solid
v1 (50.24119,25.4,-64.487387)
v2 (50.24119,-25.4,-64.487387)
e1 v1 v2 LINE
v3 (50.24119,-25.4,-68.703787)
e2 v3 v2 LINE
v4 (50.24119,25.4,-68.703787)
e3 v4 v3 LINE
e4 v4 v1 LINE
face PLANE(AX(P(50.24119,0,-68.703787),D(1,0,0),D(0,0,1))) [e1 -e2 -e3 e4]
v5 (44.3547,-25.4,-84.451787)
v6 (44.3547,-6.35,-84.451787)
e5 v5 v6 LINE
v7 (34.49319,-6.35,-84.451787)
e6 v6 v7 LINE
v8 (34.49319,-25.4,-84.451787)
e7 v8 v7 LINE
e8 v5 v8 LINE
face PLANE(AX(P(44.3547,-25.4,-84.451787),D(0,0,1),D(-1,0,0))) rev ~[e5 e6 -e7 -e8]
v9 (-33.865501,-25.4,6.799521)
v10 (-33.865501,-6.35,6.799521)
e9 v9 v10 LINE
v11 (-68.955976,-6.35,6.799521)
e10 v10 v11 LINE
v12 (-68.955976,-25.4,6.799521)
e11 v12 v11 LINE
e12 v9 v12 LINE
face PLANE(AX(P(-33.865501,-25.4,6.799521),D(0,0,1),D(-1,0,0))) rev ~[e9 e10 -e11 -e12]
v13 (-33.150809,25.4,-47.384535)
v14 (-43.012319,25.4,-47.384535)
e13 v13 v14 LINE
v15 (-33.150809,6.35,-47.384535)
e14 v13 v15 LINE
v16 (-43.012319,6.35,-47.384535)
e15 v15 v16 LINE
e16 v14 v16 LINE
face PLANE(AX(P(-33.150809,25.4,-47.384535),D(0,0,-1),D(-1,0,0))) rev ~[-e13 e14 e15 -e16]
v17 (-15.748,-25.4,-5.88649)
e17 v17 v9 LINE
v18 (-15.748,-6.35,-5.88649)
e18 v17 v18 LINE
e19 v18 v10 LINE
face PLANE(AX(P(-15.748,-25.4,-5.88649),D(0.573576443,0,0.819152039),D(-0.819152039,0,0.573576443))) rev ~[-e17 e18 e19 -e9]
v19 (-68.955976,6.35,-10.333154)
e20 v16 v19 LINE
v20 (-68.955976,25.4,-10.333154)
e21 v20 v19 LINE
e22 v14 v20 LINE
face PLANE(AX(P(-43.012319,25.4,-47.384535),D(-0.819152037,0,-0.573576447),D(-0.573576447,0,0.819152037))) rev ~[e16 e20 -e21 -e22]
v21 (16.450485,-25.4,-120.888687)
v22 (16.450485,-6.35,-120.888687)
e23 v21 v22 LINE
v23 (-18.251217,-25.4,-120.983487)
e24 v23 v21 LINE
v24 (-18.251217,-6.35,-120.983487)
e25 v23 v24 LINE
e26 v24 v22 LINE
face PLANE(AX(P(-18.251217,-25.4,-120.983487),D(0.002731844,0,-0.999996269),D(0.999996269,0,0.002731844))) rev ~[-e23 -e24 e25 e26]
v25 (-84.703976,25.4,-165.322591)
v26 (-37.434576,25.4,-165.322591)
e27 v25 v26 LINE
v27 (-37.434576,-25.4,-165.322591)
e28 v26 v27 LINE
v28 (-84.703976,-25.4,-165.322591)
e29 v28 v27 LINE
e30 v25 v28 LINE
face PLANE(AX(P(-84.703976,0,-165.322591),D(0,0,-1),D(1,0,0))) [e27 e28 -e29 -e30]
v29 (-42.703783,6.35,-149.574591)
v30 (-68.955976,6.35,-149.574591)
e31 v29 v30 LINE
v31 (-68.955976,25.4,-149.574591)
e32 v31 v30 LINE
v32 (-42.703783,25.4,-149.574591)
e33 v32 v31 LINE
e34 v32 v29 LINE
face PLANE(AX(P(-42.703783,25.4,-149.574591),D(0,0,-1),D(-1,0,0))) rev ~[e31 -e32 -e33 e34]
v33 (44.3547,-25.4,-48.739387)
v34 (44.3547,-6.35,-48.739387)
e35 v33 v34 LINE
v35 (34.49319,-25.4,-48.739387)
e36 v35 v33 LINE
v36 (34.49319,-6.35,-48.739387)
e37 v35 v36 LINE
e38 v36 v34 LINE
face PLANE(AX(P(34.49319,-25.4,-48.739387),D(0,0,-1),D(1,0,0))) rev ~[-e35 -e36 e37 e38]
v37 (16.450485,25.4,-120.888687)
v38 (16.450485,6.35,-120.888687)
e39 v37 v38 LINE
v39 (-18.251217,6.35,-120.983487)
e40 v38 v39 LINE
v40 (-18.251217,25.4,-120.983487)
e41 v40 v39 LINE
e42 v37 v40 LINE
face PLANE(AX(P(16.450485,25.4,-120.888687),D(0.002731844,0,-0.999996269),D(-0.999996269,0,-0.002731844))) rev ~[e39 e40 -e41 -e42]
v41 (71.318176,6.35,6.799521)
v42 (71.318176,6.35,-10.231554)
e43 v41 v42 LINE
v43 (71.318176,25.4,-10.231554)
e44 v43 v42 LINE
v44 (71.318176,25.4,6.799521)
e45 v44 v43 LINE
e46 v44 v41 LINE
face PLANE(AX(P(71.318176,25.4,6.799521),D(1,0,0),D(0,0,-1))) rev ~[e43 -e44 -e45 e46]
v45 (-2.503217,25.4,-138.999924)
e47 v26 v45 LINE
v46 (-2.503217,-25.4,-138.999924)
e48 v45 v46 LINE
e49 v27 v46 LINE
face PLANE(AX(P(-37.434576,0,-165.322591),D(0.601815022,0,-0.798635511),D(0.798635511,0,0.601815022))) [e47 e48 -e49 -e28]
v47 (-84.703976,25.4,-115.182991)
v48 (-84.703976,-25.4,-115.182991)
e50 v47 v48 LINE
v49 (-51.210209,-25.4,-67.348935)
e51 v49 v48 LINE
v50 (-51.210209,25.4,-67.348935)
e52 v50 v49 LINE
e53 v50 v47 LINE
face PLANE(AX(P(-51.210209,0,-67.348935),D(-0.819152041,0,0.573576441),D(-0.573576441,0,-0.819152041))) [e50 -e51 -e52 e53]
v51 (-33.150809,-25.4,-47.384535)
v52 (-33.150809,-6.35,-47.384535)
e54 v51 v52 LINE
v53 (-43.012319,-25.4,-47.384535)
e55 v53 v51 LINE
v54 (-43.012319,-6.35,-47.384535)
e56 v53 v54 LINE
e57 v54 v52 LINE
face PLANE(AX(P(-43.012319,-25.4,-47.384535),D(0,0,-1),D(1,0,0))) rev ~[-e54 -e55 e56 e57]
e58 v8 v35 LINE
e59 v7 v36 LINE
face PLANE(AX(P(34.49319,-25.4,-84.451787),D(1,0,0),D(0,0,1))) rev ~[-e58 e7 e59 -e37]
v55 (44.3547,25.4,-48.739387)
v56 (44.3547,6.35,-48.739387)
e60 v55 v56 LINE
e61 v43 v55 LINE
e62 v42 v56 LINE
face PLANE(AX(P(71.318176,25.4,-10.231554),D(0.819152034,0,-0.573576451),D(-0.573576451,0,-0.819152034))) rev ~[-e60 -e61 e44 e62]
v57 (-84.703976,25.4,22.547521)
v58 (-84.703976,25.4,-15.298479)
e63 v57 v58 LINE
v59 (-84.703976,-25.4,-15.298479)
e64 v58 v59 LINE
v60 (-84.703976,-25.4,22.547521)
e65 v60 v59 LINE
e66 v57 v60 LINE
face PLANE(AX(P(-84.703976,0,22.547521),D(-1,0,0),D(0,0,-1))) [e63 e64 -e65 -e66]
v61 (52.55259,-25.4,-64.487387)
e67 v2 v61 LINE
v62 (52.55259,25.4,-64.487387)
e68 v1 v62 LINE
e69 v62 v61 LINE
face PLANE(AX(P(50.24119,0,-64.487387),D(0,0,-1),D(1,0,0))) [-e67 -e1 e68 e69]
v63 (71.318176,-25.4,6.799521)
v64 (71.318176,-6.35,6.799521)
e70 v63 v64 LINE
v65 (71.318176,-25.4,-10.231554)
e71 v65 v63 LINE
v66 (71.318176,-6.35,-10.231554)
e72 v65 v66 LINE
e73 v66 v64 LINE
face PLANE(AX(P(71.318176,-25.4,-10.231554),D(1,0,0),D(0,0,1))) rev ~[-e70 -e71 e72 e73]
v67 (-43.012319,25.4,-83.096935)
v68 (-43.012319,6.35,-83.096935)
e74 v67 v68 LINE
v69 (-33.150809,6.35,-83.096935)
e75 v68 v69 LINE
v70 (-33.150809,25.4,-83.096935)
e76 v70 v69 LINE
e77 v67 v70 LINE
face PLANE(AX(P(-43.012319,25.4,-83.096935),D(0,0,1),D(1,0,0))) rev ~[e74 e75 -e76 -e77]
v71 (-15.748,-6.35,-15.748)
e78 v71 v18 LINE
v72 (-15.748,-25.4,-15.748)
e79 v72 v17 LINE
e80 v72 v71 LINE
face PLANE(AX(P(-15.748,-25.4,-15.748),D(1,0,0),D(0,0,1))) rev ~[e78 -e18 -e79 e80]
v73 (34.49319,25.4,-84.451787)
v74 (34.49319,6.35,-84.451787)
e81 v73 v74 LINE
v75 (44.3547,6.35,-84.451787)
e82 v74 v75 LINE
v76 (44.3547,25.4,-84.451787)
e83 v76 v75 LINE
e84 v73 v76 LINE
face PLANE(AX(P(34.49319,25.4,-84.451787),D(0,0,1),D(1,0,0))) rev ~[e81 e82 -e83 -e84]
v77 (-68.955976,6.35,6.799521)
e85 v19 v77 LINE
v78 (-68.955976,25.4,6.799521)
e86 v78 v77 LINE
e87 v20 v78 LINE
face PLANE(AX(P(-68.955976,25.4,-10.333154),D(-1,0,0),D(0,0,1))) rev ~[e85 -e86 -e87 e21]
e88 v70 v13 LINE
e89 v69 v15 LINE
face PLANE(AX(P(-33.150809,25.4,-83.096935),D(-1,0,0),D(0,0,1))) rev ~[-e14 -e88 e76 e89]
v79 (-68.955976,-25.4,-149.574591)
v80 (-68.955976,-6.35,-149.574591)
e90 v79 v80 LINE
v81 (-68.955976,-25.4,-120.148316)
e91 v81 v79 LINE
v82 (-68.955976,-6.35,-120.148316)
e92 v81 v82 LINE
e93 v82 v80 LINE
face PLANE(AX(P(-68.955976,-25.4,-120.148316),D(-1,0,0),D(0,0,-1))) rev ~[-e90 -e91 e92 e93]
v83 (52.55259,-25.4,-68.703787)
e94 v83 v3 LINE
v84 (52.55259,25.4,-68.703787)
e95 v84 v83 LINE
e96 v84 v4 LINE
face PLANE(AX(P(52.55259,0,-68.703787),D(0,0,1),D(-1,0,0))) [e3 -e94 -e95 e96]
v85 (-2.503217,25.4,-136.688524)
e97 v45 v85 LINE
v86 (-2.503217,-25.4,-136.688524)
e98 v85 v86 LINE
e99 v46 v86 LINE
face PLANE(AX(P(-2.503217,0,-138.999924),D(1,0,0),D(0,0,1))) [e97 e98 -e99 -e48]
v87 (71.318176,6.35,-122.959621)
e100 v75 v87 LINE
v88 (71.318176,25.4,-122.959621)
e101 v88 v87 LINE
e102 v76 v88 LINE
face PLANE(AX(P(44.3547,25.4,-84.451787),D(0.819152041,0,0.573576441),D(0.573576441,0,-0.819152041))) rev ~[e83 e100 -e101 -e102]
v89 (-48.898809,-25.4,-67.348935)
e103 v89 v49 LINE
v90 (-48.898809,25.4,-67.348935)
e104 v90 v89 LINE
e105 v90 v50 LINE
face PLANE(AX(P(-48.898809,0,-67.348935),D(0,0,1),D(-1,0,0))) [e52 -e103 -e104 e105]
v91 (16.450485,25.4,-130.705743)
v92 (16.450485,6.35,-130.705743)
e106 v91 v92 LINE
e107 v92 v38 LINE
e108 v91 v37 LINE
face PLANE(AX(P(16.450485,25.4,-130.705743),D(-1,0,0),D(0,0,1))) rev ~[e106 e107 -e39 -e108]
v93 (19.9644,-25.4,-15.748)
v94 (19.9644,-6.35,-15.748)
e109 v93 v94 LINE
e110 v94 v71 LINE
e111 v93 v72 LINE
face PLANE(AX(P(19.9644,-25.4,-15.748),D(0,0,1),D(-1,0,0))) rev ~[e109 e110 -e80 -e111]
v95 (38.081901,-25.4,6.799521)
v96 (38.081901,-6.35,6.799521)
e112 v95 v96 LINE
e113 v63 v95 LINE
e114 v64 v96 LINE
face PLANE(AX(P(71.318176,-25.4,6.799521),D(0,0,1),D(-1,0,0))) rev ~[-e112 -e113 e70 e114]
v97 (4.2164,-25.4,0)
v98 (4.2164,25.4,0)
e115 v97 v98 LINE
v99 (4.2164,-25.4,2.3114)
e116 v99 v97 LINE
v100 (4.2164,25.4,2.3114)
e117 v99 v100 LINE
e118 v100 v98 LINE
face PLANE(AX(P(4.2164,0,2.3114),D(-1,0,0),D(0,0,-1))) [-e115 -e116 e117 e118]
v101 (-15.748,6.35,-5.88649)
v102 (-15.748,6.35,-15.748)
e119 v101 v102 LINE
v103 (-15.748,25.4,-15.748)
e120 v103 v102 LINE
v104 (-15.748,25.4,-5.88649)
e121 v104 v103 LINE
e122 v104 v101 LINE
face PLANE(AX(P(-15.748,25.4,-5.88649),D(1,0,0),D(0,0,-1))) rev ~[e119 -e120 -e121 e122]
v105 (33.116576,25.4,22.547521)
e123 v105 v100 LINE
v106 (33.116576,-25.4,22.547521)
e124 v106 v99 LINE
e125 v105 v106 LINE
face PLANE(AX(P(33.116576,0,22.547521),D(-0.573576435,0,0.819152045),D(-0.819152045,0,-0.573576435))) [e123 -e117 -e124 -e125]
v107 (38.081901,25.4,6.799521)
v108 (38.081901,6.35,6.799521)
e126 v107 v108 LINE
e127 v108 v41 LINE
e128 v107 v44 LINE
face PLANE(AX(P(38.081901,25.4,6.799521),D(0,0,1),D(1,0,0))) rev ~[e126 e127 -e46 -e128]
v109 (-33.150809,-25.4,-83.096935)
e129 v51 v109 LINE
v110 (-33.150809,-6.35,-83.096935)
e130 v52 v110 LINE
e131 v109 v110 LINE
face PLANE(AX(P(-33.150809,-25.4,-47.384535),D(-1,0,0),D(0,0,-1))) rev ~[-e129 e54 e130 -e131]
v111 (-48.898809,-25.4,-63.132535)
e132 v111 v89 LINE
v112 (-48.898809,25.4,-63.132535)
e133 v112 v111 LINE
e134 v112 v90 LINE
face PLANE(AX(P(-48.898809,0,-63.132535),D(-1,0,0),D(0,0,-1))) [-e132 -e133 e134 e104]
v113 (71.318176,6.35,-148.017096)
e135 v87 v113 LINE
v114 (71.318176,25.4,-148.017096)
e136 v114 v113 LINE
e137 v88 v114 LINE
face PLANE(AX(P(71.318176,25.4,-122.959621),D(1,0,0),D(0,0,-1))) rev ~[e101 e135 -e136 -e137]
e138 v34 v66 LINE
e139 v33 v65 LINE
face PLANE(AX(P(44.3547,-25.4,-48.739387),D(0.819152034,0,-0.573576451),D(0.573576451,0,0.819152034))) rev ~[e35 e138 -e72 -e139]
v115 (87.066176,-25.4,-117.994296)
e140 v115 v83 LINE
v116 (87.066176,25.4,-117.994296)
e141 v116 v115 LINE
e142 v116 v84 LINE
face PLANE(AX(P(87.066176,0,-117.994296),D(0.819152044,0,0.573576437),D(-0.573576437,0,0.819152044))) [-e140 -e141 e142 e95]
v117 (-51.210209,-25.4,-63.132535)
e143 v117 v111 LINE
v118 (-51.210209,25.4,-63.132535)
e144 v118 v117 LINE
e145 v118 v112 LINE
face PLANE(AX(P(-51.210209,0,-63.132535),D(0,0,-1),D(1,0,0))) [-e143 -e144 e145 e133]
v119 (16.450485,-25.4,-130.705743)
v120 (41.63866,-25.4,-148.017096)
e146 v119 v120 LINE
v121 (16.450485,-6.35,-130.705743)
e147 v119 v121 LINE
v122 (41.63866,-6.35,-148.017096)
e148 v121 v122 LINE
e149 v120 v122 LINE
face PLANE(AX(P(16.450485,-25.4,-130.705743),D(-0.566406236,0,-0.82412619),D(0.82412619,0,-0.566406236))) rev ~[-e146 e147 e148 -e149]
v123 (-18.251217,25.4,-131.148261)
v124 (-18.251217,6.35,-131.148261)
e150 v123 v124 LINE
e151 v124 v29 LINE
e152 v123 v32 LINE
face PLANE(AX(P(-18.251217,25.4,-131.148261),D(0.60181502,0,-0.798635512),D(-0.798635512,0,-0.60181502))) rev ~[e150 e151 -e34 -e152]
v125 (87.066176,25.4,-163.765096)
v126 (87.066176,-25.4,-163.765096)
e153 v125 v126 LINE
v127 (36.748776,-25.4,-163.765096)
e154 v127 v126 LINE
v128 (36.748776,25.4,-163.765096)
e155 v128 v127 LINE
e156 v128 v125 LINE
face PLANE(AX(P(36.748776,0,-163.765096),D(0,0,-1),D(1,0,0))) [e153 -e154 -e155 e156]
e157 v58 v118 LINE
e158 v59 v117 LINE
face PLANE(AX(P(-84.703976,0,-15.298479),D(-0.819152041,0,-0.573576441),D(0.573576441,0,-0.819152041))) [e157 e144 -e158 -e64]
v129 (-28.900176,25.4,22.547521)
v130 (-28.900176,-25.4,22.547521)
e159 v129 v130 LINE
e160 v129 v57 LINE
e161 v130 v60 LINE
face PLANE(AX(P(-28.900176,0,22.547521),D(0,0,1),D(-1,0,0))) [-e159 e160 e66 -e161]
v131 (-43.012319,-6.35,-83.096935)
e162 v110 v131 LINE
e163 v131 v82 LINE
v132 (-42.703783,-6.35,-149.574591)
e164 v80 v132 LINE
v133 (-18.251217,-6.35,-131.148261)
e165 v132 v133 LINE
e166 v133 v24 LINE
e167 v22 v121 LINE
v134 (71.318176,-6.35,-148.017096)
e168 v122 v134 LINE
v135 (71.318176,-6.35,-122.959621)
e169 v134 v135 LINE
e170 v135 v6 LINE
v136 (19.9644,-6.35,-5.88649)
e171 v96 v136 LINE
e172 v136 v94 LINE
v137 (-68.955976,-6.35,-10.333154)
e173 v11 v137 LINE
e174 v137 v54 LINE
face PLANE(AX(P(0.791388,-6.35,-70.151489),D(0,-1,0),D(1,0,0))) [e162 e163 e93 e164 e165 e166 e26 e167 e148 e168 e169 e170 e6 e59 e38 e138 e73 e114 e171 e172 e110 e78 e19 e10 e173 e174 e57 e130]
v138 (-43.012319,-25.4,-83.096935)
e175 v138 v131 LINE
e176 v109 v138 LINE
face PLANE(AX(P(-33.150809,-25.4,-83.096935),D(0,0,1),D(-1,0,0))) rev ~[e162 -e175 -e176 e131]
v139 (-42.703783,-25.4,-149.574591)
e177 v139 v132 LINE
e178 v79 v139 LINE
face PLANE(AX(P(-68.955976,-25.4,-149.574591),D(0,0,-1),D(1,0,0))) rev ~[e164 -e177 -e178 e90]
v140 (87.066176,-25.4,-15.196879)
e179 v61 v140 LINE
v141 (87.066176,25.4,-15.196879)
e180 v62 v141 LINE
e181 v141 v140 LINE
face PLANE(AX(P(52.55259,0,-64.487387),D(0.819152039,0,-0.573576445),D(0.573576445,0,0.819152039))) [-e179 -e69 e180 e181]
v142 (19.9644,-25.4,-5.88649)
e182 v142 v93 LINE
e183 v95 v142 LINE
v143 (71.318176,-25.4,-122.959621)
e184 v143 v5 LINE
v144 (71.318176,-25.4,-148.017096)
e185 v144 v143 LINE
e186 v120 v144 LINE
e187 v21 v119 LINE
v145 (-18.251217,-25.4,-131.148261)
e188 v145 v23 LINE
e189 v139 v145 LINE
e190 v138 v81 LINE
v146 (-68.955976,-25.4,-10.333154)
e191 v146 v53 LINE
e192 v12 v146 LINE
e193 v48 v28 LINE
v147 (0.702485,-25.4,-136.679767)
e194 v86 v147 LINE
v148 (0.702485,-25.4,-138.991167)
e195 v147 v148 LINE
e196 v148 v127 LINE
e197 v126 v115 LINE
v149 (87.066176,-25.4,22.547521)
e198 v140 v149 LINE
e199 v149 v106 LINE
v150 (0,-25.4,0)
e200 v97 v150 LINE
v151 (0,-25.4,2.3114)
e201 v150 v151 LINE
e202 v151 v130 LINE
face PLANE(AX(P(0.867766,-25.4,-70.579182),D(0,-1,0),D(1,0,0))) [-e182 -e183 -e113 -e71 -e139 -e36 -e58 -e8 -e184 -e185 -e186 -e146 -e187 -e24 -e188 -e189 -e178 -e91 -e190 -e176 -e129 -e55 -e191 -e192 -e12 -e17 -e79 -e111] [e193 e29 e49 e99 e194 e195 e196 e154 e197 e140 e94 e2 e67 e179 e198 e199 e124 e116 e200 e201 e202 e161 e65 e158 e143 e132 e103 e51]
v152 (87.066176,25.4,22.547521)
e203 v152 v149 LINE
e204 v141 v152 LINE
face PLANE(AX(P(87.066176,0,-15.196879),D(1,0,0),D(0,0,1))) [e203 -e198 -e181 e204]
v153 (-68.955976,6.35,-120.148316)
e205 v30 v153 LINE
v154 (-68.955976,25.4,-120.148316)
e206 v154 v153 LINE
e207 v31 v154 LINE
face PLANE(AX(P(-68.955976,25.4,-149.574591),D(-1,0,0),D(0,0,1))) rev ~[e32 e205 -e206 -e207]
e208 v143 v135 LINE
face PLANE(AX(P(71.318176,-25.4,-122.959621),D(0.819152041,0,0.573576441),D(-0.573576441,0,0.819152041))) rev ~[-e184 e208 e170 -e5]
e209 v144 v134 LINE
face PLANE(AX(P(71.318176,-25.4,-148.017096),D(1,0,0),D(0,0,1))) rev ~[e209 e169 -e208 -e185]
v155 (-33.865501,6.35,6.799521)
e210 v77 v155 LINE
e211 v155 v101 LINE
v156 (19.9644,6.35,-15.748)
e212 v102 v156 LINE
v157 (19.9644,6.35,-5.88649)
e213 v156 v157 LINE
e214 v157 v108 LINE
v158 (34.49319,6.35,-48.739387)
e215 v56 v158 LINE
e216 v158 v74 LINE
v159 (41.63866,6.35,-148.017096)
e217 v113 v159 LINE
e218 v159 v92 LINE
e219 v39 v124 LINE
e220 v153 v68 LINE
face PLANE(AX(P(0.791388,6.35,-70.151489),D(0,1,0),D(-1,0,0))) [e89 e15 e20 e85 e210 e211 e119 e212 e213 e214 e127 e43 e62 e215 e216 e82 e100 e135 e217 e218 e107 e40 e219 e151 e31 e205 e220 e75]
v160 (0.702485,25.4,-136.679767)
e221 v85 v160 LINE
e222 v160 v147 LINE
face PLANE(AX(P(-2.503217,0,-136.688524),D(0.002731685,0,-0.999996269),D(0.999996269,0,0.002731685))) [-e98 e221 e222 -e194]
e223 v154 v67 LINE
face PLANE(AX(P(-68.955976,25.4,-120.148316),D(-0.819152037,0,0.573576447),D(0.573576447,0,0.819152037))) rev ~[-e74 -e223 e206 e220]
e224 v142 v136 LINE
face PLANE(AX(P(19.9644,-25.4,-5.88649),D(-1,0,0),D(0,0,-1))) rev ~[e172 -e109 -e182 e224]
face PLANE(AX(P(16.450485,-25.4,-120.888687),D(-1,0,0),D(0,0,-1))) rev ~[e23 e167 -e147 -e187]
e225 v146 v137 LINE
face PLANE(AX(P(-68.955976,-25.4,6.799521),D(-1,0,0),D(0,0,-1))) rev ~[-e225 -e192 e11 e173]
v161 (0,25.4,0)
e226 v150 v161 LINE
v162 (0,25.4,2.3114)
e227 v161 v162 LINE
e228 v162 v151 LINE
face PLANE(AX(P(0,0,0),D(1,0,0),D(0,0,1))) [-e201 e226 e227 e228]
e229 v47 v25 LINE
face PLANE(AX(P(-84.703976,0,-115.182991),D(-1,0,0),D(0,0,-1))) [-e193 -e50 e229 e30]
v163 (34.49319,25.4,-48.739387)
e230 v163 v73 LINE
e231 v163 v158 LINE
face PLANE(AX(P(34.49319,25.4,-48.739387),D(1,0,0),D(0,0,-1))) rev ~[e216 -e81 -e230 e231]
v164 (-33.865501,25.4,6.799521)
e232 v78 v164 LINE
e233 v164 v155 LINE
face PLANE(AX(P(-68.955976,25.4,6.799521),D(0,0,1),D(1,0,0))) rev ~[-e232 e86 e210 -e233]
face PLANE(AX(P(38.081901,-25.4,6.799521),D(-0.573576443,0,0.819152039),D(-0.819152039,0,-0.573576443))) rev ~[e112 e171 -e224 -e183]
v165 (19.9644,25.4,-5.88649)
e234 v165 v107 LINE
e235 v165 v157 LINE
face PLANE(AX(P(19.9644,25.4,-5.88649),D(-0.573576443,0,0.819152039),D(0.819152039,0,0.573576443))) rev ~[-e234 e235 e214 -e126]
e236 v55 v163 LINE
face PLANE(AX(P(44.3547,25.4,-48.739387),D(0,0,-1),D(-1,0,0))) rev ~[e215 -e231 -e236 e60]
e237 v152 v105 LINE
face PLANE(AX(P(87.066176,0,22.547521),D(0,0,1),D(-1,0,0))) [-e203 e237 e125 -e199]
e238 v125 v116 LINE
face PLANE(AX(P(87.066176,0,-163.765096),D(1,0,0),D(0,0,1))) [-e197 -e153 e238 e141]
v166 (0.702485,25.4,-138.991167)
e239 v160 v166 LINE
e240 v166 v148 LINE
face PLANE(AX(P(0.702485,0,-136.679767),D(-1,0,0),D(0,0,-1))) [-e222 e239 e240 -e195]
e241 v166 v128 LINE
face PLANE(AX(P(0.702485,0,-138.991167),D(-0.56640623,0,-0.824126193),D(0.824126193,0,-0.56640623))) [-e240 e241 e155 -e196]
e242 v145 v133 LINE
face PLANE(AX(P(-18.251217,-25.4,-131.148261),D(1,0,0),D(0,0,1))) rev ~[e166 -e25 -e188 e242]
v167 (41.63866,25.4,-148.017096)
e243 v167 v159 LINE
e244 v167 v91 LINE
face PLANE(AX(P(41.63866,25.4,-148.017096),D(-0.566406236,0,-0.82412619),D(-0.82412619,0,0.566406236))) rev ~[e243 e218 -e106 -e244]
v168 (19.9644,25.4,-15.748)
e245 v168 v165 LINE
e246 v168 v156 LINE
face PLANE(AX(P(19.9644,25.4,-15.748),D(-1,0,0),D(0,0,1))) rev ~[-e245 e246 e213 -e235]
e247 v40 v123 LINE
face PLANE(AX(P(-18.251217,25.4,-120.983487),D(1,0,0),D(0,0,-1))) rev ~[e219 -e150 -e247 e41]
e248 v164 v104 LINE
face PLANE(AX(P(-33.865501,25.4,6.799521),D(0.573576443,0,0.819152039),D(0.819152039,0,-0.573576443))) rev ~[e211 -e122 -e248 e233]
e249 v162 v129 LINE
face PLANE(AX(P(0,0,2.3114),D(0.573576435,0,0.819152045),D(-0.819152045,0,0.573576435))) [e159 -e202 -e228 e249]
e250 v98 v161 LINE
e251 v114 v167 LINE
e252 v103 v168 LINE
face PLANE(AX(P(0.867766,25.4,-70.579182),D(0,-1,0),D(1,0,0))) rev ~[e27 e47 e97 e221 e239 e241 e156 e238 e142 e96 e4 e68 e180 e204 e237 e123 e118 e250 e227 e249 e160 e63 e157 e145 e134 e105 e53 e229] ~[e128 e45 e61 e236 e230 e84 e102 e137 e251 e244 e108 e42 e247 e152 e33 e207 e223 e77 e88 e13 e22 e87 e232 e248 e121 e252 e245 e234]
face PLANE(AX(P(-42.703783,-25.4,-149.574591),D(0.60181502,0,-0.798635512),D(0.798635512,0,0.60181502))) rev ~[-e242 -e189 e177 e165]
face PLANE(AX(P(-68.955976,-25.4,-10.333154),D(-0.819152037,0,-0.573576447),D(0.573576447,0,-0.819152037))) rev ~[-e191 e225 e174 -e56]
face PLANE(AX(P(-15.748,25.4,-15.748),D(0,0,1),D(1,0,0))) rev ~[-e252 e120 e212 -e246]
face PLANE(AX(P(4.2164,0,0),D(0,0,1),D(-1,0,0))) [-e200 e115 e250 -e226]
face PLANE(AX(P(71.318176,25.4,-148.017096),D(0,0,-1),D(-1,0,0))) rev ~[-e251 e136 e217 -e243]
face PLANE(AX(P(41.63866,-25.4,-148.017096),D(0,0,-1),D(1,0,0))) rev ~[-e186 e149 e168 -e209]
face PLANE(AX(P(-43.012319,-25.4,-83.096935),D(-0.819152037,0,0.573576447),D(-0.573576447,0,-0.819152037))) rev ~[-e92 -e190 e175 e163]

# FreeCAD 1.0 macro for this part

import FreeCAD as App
import Part
import Sketcher

V = App.Vector
Q = App.Units.Quantity

doc = App.newDocument("Part")
body = doc.addObject("PartDesign::Body", "Body")

# Sketch on XZ plane
sketch1 = doc.addObject("Sketcher::SketchObject", "Sketch")
body.addObject(sketch1)
sketch1.AttachmentSupport = (doc.XZ_Plane, [""])
sketch1.MapMode = "FlatFace"
sketch1.addGeometry(Part.LineSegment(V(0, 0, 0), V(0, 2.3, 0)), False)
sketch1.addGeometry(Part.LineSegment(V(0, 2.3, 0), V(-28.9, 22.5, 0)), False)
sketch1.addGeometry(Part.LineSegment(V(-28.9, 22.5, 0), V(-84.7, 22.5, 0)), False)
sketch1.addGeometry(Part.LineSegment(V(-84.7, 22.5, 0), V(-84.7, -15.3, 0)), False)
sketch1.addGeometry(Part.LineSegment(V(-84.7, -15.3, 0), V(-51.2, -63.1, 0)), False)
sketch1.addGeometry(Part.LineSegment(V(-51.2, -63.1, 0), V(-48.9, -63.1, 0)), False)
sketch1.addGeometry(Part.LineSegment(V(-48.9, -63.1, 0), V(-48.9, -67.3, 0)), False)
sketch1.addGeometry(Part.LineSegment(V(-48.9, -67.3, 0), V(-51.2, -67.3, 0)), False)
sketch1.addGeometry(Part.LineSegment(V(-51.2, -67.3, 0), V(-84.7, -115.2, 0)), False)
sketch1.addGeometry(Part.LineSegment(V(-84.7, -115.2, 0), V(-84.7, -165.3, 0)), False)
sketch1.addGeometry(Part.LineSegment(V(-84.7, -165.3, 0), V(-37.4, -165.3, 0)), False)
sketch1.addGeometry(Part.LineSegment(V(-37.4, -165.3, 0), V(-2.5, -139, 0)), False)
sketch1.addGeometry(Part.LineSegment(V(-2.5, -139, 0), V(-2.5, -136.7, 0)), False)
sketch1.addGeometry(Part.LineSegment(V(-2.5, -136.7, 0), V(0.7, -136.7, 0)), False)
sketch1.addGeometry(Part.LineSegment(V(0.7, -136.7, 0), V(0.7, -139, 0)), False)
sketch1.addGeometry(Part.LineSegment(V(0.7, -139, 0), V(36.7, -163.8, 0)), False)
sketch1.addGeometry(Part.LineSegment(V(36.7, -163.8, 0), V(87.1, -163.8, 0)), False)
sketch1.addGeometry(Part.LineSegment(V(87.1, -163.8, 0), V(87.1, -118, 0)), False)
sketch1.addGeometry(Part.LineSegment(V(87.1, -118, 0), V(52.6, -68.7, 0)), False)
sketch1.addGeometry(Part.LineSegment(V(52.6, -68.7, 0), V(50.2, -68.7, 0)), False)
sketch1.addGeometry(Part.LineSegment(V(50.2, -68.7, 0), V(50.2, -64.5, 0)), False)
sketch1.addGeometry(Part.LineSegment(V(50.2, -64.5, 0), V(52.6, -64.5, 0)), False)
sketch1.addGeometry(Part.LineSegment(V(52.6, -64.5, 0), V(87.1, -15.2, 0)), False)
sketch1.addGeometry(Part.LineSegment(V(87.1, -15.2, 0), V(87.1, 22.5, 0)), False)
sketch1.addGeometry(Part.LineSegment(V(87.1, 22.5, 0), V(33.1, 22.5, 0)), False)
sketch1.addGeometry(Part.LineSegment(V(33.1, 22.5, 0), V(4.2, 2.3, 0)), False)
sketch1.addGeometry(Part.LineSegment(V(4.2, 2.3, 0), V(4.2, 0, 0)), False)
sketch1.addGeometry(Part.LineSegment(V(4.2, 0, 0), V(0, 0, 0)), False)
sketch1.addConstraint(Sketcher.Constraint("Coincident", 0, 2, 1, 1))
sketch1.addConstraint(Sketcher.Constraint("Coincident", 1, 2, 2, 1))
sketch1.addConstraint(Sketcher.Constraint("Coincident", 2, 2, 3, 1))
sketch1.addConstraint(Sketcher.Constraint("Coincident", 3, 2, 4, 1))
sketch1.addConstraint(Sketcher.Constraint("Coincident", 4, 2, 5, 1))
sketch1.addConstraint(Sketcher.Constraint("Coincident", 5, 2, 6, 1))
sketch1.addConstraint(Sketcher.Constraint("Coincident", 6, 2, 7, 1))
sketch1.addConstraint(Sketcher.Constraint("Coincident", 7, 2, 8, 1))
sketch1.addConstraint(Sketcher.Constraint("Coincident", 8, 2, 9, 1))
sketch1.addConstraint(Sketcher.Constraint("Coincident", 9, 2, 10, 1))
sketch1.addConstraint(Sketcher.Constraint("Coincident", 10, 2, 11, 1))
sketch1.addConstraint(Sketcher.Constraint("Coincident", 11, 2, 12, 1))
sketch1.addConstraint(Sketcher.Constraint("Coincident", 12, 2, 13, 1))
sketch1.addConstraint(Sketcher.Constraint("Coincident", 13, 2, 14, 1))
sketch1.addConstraint(Sketcher.Constraint("Coincident", 14, 2, 15, 1))
sketch1.addConstraint(Sketcher.Constraint("Coincident", 15, 2, 16, 1))
sketch1.addConstraint(Sketcher.Constraint("Coincident", 16, 2, 17, 1))
sketch1.addConstraint(Sketcher.Constraint("Coincident", 17, 2, 18, 1))
sketch1.addConstraint(Sketcher.Constraint("Coincident", 18, 2, 19, 1))
sketch1.addConstraint(Sketcher.Constraint("Coincident", 19, 2, 20, 1))
sketch1.addConstraint(Sketcher.Constraint("Coincident", 20, 2, 21, 1))
sketch1.addConstraint(Sketcher.Constraint("Coincident", 21, 2, 22, 1))
sketch1.addConstraint(Sketcher.Constraint("Coincident", 22, 2, 23, 1))
sketch1.addConstraint(Sketcher.Constraint("Coincident", 23, 2, 24, 1))
sketch1.addConstraint(Sketcher.Constraint("Coincident", 24, 2, 25, 1))
sketch1.addConstraint(Sketcher.Constraint("Coincident", 25, 2, 26, 1))
sketch1.addConstraint(Sketcher.Constraint("Coincident", 26, 2, 27, 1))
sketch1.addConstraint(Sketcher.Constraint("Coincident", 27, 2, 0, 1))
sketch1.addConstraint(Sketcher.Constraint("Vertical", 0))
sketch1.addConstraint(Sketcher.Constraint("Horizontal", 2))
sketch1.addConstraint(Sketcher.Constraint("Vertical", 3))
sketch1.addConstraint(Sketcher.Constraint("Horizontal", 5))
sketch1.addConstraint(Sketcher.Constraint("Vertical", 6))
sketch1.addConstraint(Sketcher.Constraint("Horizontal", 7))
sketch1.addConstraint(Sketcher.Constraint("Vertical", 9))
sketch1.addConstraint(Sketcher.Constraint("Horizontal", 10))
sketch1.addConstraint(Sketcher.Constraint("Vertical", 12))
sketch1.addConstraint(Sketcher.Constraint("Vertical", 14))
sketch1.addConstraint(Sketcher.Constraint("Horizontal", 16))
sketch1.addConstraint(Sketcher.Constraint("Vertical", 17))
sketch1.addConstraint(Sketcher.Constraint("Horizontal", 19))
sketch1.addConstraint(Sketcher.Constraint("Vertical", 20))
sketch1.addConstraint(Sketcher.Constraint("Horizontal", 21))
sketch1.addConstraint(Sketcher.Constraint("Vertical", 23))
sketch1.addConstraint(Sketcher.Constraint("Horizontal", 24))
sketch1.addConstraint(Sketcher.Constraint("Vertical", 26))
sketch1.addConstraint(Sketcher.Constraint("Horizontal", 27))
sketch1.addConstraint(Sketcher.Constraint("Coincident", 27, 2, -1, 1))
sketch1.addConstraint(Sketcher.Constraint("Perpendicular", 1, 8))
sketch1.addConstraint(Sketcher.Constraint("Parallel", 4, 18))
sketch1.addConstraint(Sketcher.Constraint("Parallel", 8, 22))
sketch1.addConstraint(Sketcher.Constraint("Perpendicular", 18, 25))
sketch1.addConstraint(Sketcher.Constraint("Horizontal", 2, 2, 23, 2))
sketch1.addConstraint(Sketcher.Constraint("Horizontal", 0, 2, 25, 2))
sketch1.addConstraint(Sketcher.Constraint("Vertical", 4, 2, 7, 2))
sketch1.addConstraint(Sketcher.Constraint("Vertical", 3, 2, 8, 2))
sketch1.addConstraint(Sketcher.Constraint("Vertical", 18, 2, 21, 2))
sketch1.addConstraint(Sketcher.Constraint("Vertical", 17, 2, 22, 2))
sketch1.addConstraint(Sketcher.Constraint("Equal", 7, 19))
sketch1.addConstraint(Sketcher.Constraint("Equal", 21, 0))
sketch1.addConstraint(Sketcher.Constraint("Equal", 27, 6))
sketch1.addConstraint(Sketcher.Constraint("Equal", 0, 12))
sketch1.addConstraint(Sketcher.Constraint("Equal", 12, 14))
sketch1.addConstraint(Sketcher.Constraint("Equal", 6, 20))
sketch1.addConstraint(Sketcher.Constraint("Equal", 4, 8))
sketch1.addConstraint(Sketcher.Constraint("Equal", 11, 15))
sketch1.addConstraint(Sketcher.Constraint("Angle", 1, Q("145 deg")))
sketch1.addConstraint(Sketcher.Constraint("Angle", 11, Q("37 deg")))
sketch1.addConstraint(Sketcher.Constraint("DistanceY", 3, 2, 3, 1, Q("1.49 in")))
sketch1.addConstraint(Sketcher.Constraint("Angle", 15, Q("-34.5 deg")))
sketch1.addConstraint(Sketcher.Constraint("DistanceX", 2, 2, 2, 1, Q("2.197 in")))
sketch1.addConstraint(Sketcher.Constraint("DistanceX", 5, 1, 5, 2, Q("0.091 in")))
sketch1.addConstraint(Sketcher.Constraint("DistanceX", 10, 1, 10, 2, Q("1.861 in")))
sketch1.addConstraint(Sketcher.Constraint("DistanceX", 16, 1, 16, 2, Q("1.981 in")))
sketch1.addConstraint(Sketcher.Constraint("DistanceX", 24, 2, 24, 1, Q("2.124 in")))
sketch1.addConstraint(Sketcher.Constraint("DistanceX", 27, 2, 27, 1, Q("0.166 in")))
sketch1.addConstraint(Sketcher.Constraint("DistanceY", 9, 2, 9, 1, Q("1.974 in")))
sketch1.addConstraint(Sketcher.Constraint("DistanceY", 17, 1, 17, 2, Q("1.802 in")))
sketch1.addConstraint(Sketcher.Constraint("DistanceY", 23, 1, 23, 2, Q("1.486 in")))
sketch1.addConstraint(Sketcher.Constraint("Distance", 1, Q("1.389 in")))
sketch1.addConstraint(Sketcher.Constraint("Distance", 4, Q("2.299 in")))
sketch1.addConstraint(Sketcher.Constraint("Distance", 11, Q("1.722 in")))
sketch1.addConstraint(Sketcher.Constraint("Distance", 18, Q("2.369 in")))
pad1 = doc.addObject("PartDesign::Pad", "Pad")
body.addObject(pad1)
pad1.Profile = sketch1
pad1.Length = Q("2 in")
pad1.Midplane = True

# Sketch on XZ plane
sketch2 = doc.addObject("Sketcher::SketchObject", "Sketch001")
body.addObject(sketch2)
sketch2.AttachmentSupport = (doc.XZ_Plane, [""])
sketch2.MapMode = "FlatFace"
sketch2.AttachmentOffset = App.Placement(V(0, 0, 1 * 25.4), App.Rotation())
sketch2.addGeometry(Part.LineSegment(V(-18, -121, 0), V(16, -121, 0)), False)
sketch2.addGeometry(Part.LineSegment(V(16, -121, 0), V(16, -131, 0)), False)
sketch2.addGeometry(Part.LineSegment(V(16, -131, 0), V(42, -148, 0)), False)
sketch2.addGeometry(Part.LineSegment(V(42, -148, 0), V(71, -148, 0)), False)
sketch2.addGeometry(Part.LineSegment(V(71, -148, 0), V(71, -123, 0)), False)
sketch2.addGeometry(Part.LineSegment(V(71, -123, 0), V(44, -84, 0)), False)
sketch2.addGeometry(Part.LineSegment(V(44, -84, 0), V(34, -84, 0)), False)
sketch2.addGeometry(Part.LineSegment(V(34, -84, 0), V(34, -49, 0)), False)
sketch2.addGeometry(Part.LineSegment(V(34, -49, 0), V(44, -49, 0)), False)
sketch2.addGeometry(Part.LineSegment(V(44, -49, 0), V(71, -10, 0)), False)
sketch2.addGeometry(Part.LineSegment(V(71, -10, 0), V(71, 7, 0)), False)
sketch2.addGeometry(Part.LineSegment(V(71, 7, 0), V(38, 7, 0)), False)
sketch2.addGeometry(Part.LineSegment(V(38, 7, 0), V(20, -6, 0)), False)
sketch2.addGeometry(Part.LineSegment(V(20, -6, 0), V(20, -16, 0)), False)
sketch2.addGeometry(Part.LineSegment(V(20, -16, 0), V(-16, -16, 0)), False)
sketch2.addGeometry(Part.LineSegment(V(-16, -16, 0), V(-16, -6, 0)), False)
sketch2.addGeometry(Part.LineSegment(V(-16, -6, 0), V(-34, 7, 0)), False)
sketch2.addGeometry(Part.LineSegment(V(-34, 7, 0), V(-69, 7, 0)), False)
sketch2.addGeometry(Part.LineSegment(V(-69, 7, 0), V(-69, -10, 0)), False)
sketch2.addGeometry(Part.LineSegment(V(-69, -10, 0), V(-43, -47, 0)), False)
sketch2.addGeometry(Part.LineSegment(V(-43, -47, 0), V(-33, -47, 0)), False)
sketch2.addGeometry(Part.LineSegment(V(-33, -47, 0), V(-33, -83, 0)), False)
sketch2.addGeometry(Part.LineSegment(V(-33, -83, 0), V(-43, -83, 0)), False)
sketch2.addGeometry(Part.LineSegment(V(-43, -83, 0), V(-69, -120, 0)), False)
sketch2.addGeometry(Part.LineSegment(V(-69, -120, 0), V(-69, -150, 0)), False)
sketch2.addGeometry(Part.LineSegment(V(-69, -150, 0), V(-43, -150, 0)), False)
sketch2.addGeometry(Part.LineSegment(V(-43, -150, 0), V(-18, -131, 0)), False)
sketch2.addGeometry(Part.LineSegment(V(-18, -131, 0), V(-18, -121, 0)), False)
sketch2.addConstraint(Sketcher.Constraint("Coincident", 0, 2, 1, 1))
sketch2.addConstraint(Sketcher.Constraint("Coincident", 1, 2, 2, 1))
sketch2.addConstraint(Sketcher.Constraint("Coincident", 2, 2, 3, 1))
sketch2.addConstraint(Sketcher.Constraint("Coincident", 3, 2, 4, 1))
sketch2.addConstraint(Sketcher.Constraint("Coincident", 4, 2, 5, 1))
sketch2.addConstraint(Sketcher.Constraint("Coincident", 5, 2, 6, 1))
sketch2.addConstraint(Sketcher.Constraint("Coincident", 6, 2, 7, 1))
sketch2.addConstraint(Sketcher.Constraint("Coincident", 7, 2, 8, 1))
sketch2.addConstraint(Sketcher.Constraint("Coincident", 8, 2, 9, 1))
sketch2.addConstraint(Sketcher.Constraint("Coincident", 9, 2, 10, 1))
sketch2.addConstraint(Sketcher.Constraint("Coincident", 10, 2, 11, 1))
sketch2.addConstraint(Sketcher.Constraint("Coincident", 11, 2, 12, 1))
sketch2.addConstraint(Sketcher.Constraint("Coincident", 12, 2, 13, 1))
sketch2.addConstraint(Sketcher.Constraint("Coincident", 13, 2, 14, 1))
sketch2.addConstraint(Sketcher.Constraint("Coincident", 14, 2, 15, 1))
sketch2.addConstraint(Sketcher.Constraint("Coincident", 15, 2, 16, 1))
sketch2.addConstraint(Sketcher.Constraint("Coincident", 16, 2, 17, 1))
sketch2.addConstraint(Sketcher.Constraint("Coincident", 17, 2, 18, 1))
sketch2.addConstraint(Sketcher.Constraint("Coincident", 18, 2, 19, 1))
sketch2.addConstraint(Sketcher.Constraint("Coincident", 19, 2, 20, 1))
sketch2.addConstraint(Sketcher.Constraint("Coincident", 20, 2, 21, 1))
sketch2.addConstraint(Sketcher.Constraint("Coincident", 21, 2, 22, 1))
sketch2.addConstraint(Sketcher.Constraint("Coincident", 22, 2, 23, 1))
sketch2.addConstraint(Sketcher.Constraint("Coincident", 23, 2, 24, 1))
sketch2.addConstraint(Sketcher.Constraint("Coincident", 24, 2, 25, 1))
sketch2.addConstraint(Sketcher.Constraint("Coincident", 25, 2, 26, 1))
sketch2.addConstraint(Sketcher.Constraint("Coincident", 26, 2, 27, 1))
sketch2.addConstraint(Sketcher.Constraint("Coincident", 27, 2, 0, 1))
sketch2.addConstraint(Sketcher.Constraint("Vertical", 1))
sketch2.addConstraint(Sketcher.Constraint("Horizontal", 3))
sketch2.addConstraint(Sketcher.Constraint("Vertical", 4))
sketch2.addConstraint(Sketcher.Constraint("Horizontal", 6))
sketch2.addConstraint(Sketcher.Constraint("Vertical", 7))
sketch2.addConstraint(Sketcher.Constraint("Horizontal", 8))
sketch2.addConstraint(Sketcher.Constraint("Vertical", 10))
sketch2.addConstraint(Sketcher.Constraint("Horizontal", 11))
sketch2.addConstraint(Sketcher.Constraint("Vertical", 13))
sketch2.addConstraint(Sketcher.Constraint("Horizontal", 14))
sketch2.addConstraint(Sketcher.Constraint("Vertical", 15))
sketch2.addConstraint(Sketcher.Constraint("Horizontal", 17))
sketch2.addConstraint(Sketcher.Constraint("Vertical", 18))
sketch2.addConstraint(Sketcher.Constraint("Horizontal", 20))
sketch2.addConstraint(Sketcher.Constraint("Vertical", 21))
sketch2.addConstraint(Sketcher.Constraint("Horizontal", 22))
sketch2.addConstraint(Sketcher.Constraint("Vertical", 24))
sketch2.addConstraint(Sketcher.Constraint("Horizontal", 25))
sketch2.addConstraint(Sketcher.Constraint("Vertical", 27))
sketch2.addConstraint(Sketcher.Constraint("Perpendicular", 5, 12))
sketch2.addConstraint(Sketcher.Constraint("Perpendicular", 9, 16))
sketch2.addConstraint(Sketcher.Constraint("Perpendicular", 12, 19))
sketch2.addConstraint(Sketcher.Constraint("Perpendicular", 16, 23))
sketch2.addConstraint(Sketcher.Constraint("Horizontal", 12, 2, 15, 2))
sketch2.addConstraint(Sketcher.Constraint("Horizontal", 11, 2, 16, 2))
sketch2.addConstraint(Sketcher.Constraint("Vertical", 5, 2, 8, 2))
sketch2.addConstraint(Sketcher.Constraint("Vertical", 4, 2, 9, 2))
sketch2.addConstraint(Sketcher.Constraint("Vertical", 19, 2, 22, 2))
sketch2.addConstraint(Sketcher.Constraint("Vertical", 18, 2, 23, 2))
sketch2.addConstraint(Sketcher.Constraint("Equal", 8, 20))
sketch2.addConstraint(Sketcher.Constraint("Equal", 14, 7))
sketch2.addConstraint(Sketcher.Constraint("Equal", 22, 13))
sketch2.addConstraint(Sketcher.Constraint("Equal", 7, 21))
sketch2.addConstraint(Sketcher.Constraint("Equal", 5, 9))
sketch2.addConstraint(Sketcher.Constraint("Angle", 5, Q("125 deg")))
sketch2.addConstraint(Sketcher.Constraint("Angle", 26, Q("37 deg")))
sketch2.addConstraint(Sketcher.Constraint("Angle", 2, Q("-34.5 deg")))
sketch2.addConstraint(Sketcher.Constraint("DistanceX", 14, 2, 14, 1, Q("1.406 in")))
sketch2.addConstraint(Sketcher.Constraint("DistanceY", 13, 2, -1, 1, Q("0.62 in")))
sketch2.addConstraint(Sketcher.Constraint("DistanceX", 14, 2, -1, 1, Q("0.62 in")))
sketch2.addConstraint(Sketcher.Constraint("DistanceX", 6, 2, 6, 1, 9.86151))
sketch2.addConstraint(Sketcher.Constraint("DistanceX", -1, 1, 5, 2, 44.3547))
sketch2.addConstraint(Sketcher.Constraint("DistanceX", -1, 1, 11, 2, 38.081901))
sketch2.addConstraint(Sketcher.Constraint("DistanceY", 0, 2, 5, 2, 36.4369))
sketch2.addConstraint(Sketcher.Constraint("DistanceX", 21, 2, 6, 2, 67.643999))
sketch2.addConstraint(Sketcher.Constraint("DistanceX", 26, 2, 1, 2, 34.701702))
sketch2.addConstraint(Sketcher.Constraint("DistanceY", 27, 2, 0, 2, 0.0948))
sketch2.addConstraint(Sketcher.Constraint("Distance", 26, 30.61793))
sketch2.addConstraint(Sketcher.Constraint("DistanceX", 3, 1, 3, 2, 29.679516))
sketch2.addConstraint(Sketcher.Constraint("DistanceX", 11, 2, 11, 1, 33.236275))
sketch2.addConstraint(Sketcher.Constraint("DistanceX", 17, 2, 17, 1, 35.090475))
sketch2.addConstraint(Sketcher.Constraint("DistanceX", 25, 1, 25, 2, 26.252193))
sketch2.addConstraint(Sketcher.Constraint("DistanceY", 1, 2, 1, 1, 9.817056))
sketch2.addConstraint(Sketcher.Constraint("DistanceY", 10, 1, 10, 2, 17.031075))
sketch2.addConstraint(Sketcher.Constraint("DistanceY", 18, 2, 18, 1, 17.132675))
sketch2.addConstraint(Sketcher.Constraint("DistanceY", 24, 2, 24, 1, 29.426275))
pocket1 = doc.addObject("PartDesign::Pocket", "Pocket")
body.addObject(pocket1)
pocket1.Profile = sketch2
pocket1.Length = Q("0.75 in")

# Sketch on XZ plane
sketch3 = doc.addObject("Sketcher::SketchObject", "Sketch002")
body.addObject(sketch3)
sketch3.AttachmentSupport = (doc.XZ_Plane, [""])
sketch3.MapMode = "FlatFace"
sketch3.AttachmentOffset = App.Placement(V(0, 0, -1 * 25.4), App.Rotation())
sketch3.addGeometry(Part.LineSegment(V(71, -123, 0), V(71, -148, 0)), False)
sketch3.addGeometry(Part.LineSegment(V(71, -148, 0), V(42, -148, 0)), False)
sketch3.addGeometry(Part.LineSegment(V(42, -148, 0), V(16, -131, 0)), False)
sketch3.addGeometry(Part.LineSegment(V(16, -131, 0), V(16, -121, 0)), False)
sketch3.addGeometry(Part.LineSegment(V(16, -121, 0), V(-18, -121, 0)), False)
sketch3.addGeometry(Part.LineSegment(V(-18, -121, 0), V(-18, -131, 0)), False)
sketch3.addGeometry(Part.LineSegment(V(-18, -131, 0), V(-43, -150, 0)), False)
sketch3.addGeometry(Part.LineSegment(V(-43, -150, 0), V(-69, -150, 0)), False)
sketch3.addGeometry(Part.LineSegment(V(-69, -150, 0), V(-69, -120, 0)), False)
sketch3.addGeometry(Part.LineSegment(V(-69, -120, 0), V(-43, -83, 0)), False)
sketch3.addGeometry(Part.LineSegment(V(-43, -83, 0), V(-33, -83, 0)), False)
sketch3.addGeometry(Part.LineSegment(V(-33, -83, 0), V(-33, -47, 0)), False)
sketch3.addGeometry(Part.LineSegment(V(-33, -47, 0), V(-43, -47, 0)), False)
sketch3.addGeometry(Part.LineSegment(V(-43, -47, 0), V(-69, -10, 0)), False)
sketch3.addGeometry(Part.LineSegment(V(-69, -10, 0), V(-69, 7, 0)), False)
sketch3.addGeometry(Part.LineSegment(V(-69, 7, 0), V(-34, 7, 0)), False)
sketch3.addGeometry(Part.LineSegment(V(-34, 7, 0), V(-16, -6, 0)), False)
sketch3.addGeometry(Part.LineSegment(V(-16, -6, 0), V(-16, -16, 0)), False)
sketch3.addGeometry(Part.LineSegment(V(-16, -16, 0), V(20, -16, 0)), False)
sketch3.addGeometry(Part.LineSegment(V(20, -16, 0), V(20, -6, 0)), False)
sketch3.addGeometry(Part.LineSegment(V(20, -6, 0), V(38, 7, 0)), False)
sketch3.addGeometry(Part.LineSegment(V(38, 7, 0), V(71, 7, 0)), False)
sketch3.addGeometry(Part.LineSegment(V(71, 7, 0), V(71, -10, 0)), False)
sketch3.addGeometry(Part.LineSegment(V(71, -10, 0), V(44, -49, 0)), False)
sketch3.addGeometry(Part.LineSegment(V(44, -49, 0), V(34, -49, 0)), False)
sketch3.addGeometry(Part.LineSegment(V(34, -49, 0), V(34, -84, 0)), False)
sketch3.addGeometry(Part.LineSegment(V(34, -84, 0), V(44, -84, 0)), False)
sketch3.addGeometry(Part.LineSegment(V(44, -84, 0), V(71, -123, 0)), False)
sketch3.addConstraint(Sketcher.Constraint("Coincident", 0, 2, 1, 1))
sketch3.addConstraint(Sketcher.Constraint("Coincident", 1, 2, 2, 1))
sketch3.addConstraint(Sketcher.Constraint("Coincident", 2, 2, 3, 1))
sketch3.addConstraint(Sketcher.Constraint("Coincident", 3, 2, 4, 1))
sketch3.addConstraint(Sketcher.Constraint("Coincident", 4, 2, 5, 1))
sketch3.addConstraint(Sketcher.Constraint("Coincident", 5, 2, 6, 1))
sketch3.addConstraint(Sketcher.Constraint("Coincident", 6, 2, 7, 1))
sketch3.addConstraint(Sketcher.Constraint("Coincident", 7, 2, 8, 1))
sketch3.addConstraint(Sketcher.Constraint("Coincident", 8, 2, 9, 1))
sketch3.addConstraint(Sketcher.Constraint("Coincident", 9, 2, 10, 1))
sketch3.addConstraint(Sketcher.Constraint("Coincident", 10, 2, 11, 1))
sketch3.addConstraint(Sketcher.Constraint("Coincident", 11, 2, 12, 1))
sketch3.addConstraint(Sketcher.Constraint("Coincident", 12, 2, 13, 1))
sketch3.addConstraint(Sketcher.Constraint("Coincident", 13, 2, 14, 1))
sketch3.addConstraint(Sketcher.Constraint("Coincident", 14, 2, 15, 1))
sketch3.addConstraint(Sketcher.Constraint("Coincident", 15, 2, 16, 1))
sketch3.addConstraint(Sketcher.Constraint("Coincident", 16, 2, 17, 1))
sketch3.addConstraint(Sketcher.Constraint("Coincident", 17, 2, 18, 1))
sketch3.addConstraint(Sketcher.Constraint("Coincident", 18, 2, 19, 1))
sketch3.addConstraint(Sketcher.Constraint("Coincident", 19, 2, 20, 1))
sketch3.addConstraint(Sketcher.Constraint("Coincident", 20, 2, 21, 1))
sketch3.addConstraint(Sketcher.Constraint("Coincident", 21, 2, 22, 1))
sketch3.addConstraint(Sketcher.Constraint("Coincident", 22, 2, 23, 1))
sketch3.addConstraint(Sketcher.Constraint("Coincident", 23, 2, 24, 1))
sketch3.addConstraint(Sketcher.Constraint("Coincident", 24, 2, 25, 1))
sketch3.addConstraint(Sketcher.Constraint("Coincident", 25, 2, 26, 1))
sketch3.addConstraint(Sketcher.Constraint("Coincident", 26, 2, 27, 1))
sketch3.addConstraint(Sketcher.Constraint("Coincident", 27, 2, 0, 1))
sketch3.addConstraint(Sketcher.Constraint("Vertical", 0))
sketch3.addConstraint(Sketcher.Constraint("Horizontal", 1))
sketch3.addConstraint(Sketcher.Constraint("Vertical", 3))
sketch3.addConstraint(Sketcher.Constraint("Vertical", 5))
sketch3.addConstraint(Sketcher.Constraint("Horizontal", 7))
sketch3.addConstraint(Sketcher.Constraint("Vertical", 8))
sketch3.addConstraint(Sketcher.Constraint("Horizontal", 10))
sketch3.addConstraint(Sketcher.Constraint("Vertical", 11))
sketch3.addConstraint(Sketcher.Constraint("Horizontal", 12))
sketch3.addConstraint(Sketcher.Constraint("Vertical", 14))
sketch3.addConstraint(Sketcher.Constraint("Horizontal", 15))
sketch3.addConstraint(Sketcher.Constraint("Vertical", 17))
sketch3.addConstraint(Sketcher.Constraint("Horizontal", 18))
sketch3.addConstraint(Sketcher.Constraint("Vertical", 19))
sketch3.addConstraint(Sketcher.Constraint("Horizontal", 21))
sketch3.addConstraint(Sketcher.Constraint("Vertical", 22))
sketch3.addConstraint(Sketcher.Constraint("Horizontal", 24))
sketch3.addConstraint(Sketcher.Constraint("Vertical", 25))
sketch3.addConstraint(Sketcher.Constraint("Horizontal", 26))
sketch3.addConstraint(Sketcher.Constraint("Perpendicular", 9, 16))
sketch3.addConstraint(Sketcher.Constraint("Perpendicular", 13, 20))
sketch3.addConstraint(Sketcher.Constraint("Perpendicular", 16, 23))
sketch3.addConstraint(Sketcher.Constraint("Perpendicular", 20, 27))
sketch3.addConstraint(Sketcher.Constraint("Horizontal", 16, 2, 19, 2))
sketch3.addConstraint(Sketcher.Constraint("Horizontal", 15, 2, 20, 2))
sketch3.addConstraint(Sketcher.Constraint("Vertical", 9, 2, 12, 2))
sketch3.addConstraint(Sketcher.Constraint("Vertical", 8, 2, 13, 2))
sketch3.addConstraint(Sketcher.Constraint("Vertical", 0, 2, 21, 2))
sketch3.addConstraint(Sketcher.Constraint("Vertical", 23, 2, 26, 2))
sketch3.addConstraint(Sketcher.Constraint("Equal", 12, 24))
sketch3.addConstraint(Sketcher.Constraint("Equal", 18, 11))
sketch3.addConstraint(Sketcher.Constraint("Equal", 26, 17))
sketch3.addConstraint(Sketcher.Constraint("Equal", 11, 25))
sketch3.addConstraint(Sketcher.Constraint("Equal", 9, 13))
sketch3.addConstraint(Sketcher.Constraint("Angle", 6, Q("-143 deg")))
sketch3.addConstraint(Sketcher.Constraint("Angle", 9, Q("54.999999 deg")))
sketch3.addConstraint(Sketcher.Constraint("Angle", 2, Q("145.5 deg")))
sketch3.addConstraint(Sketcher.Constraint("DistanceX", 18, 1, 18, 2, Q("1.406 in")))
sketch3.addConstraint(Sketcher.Constraint("DistanceX", 16, 2, -1, 1, Q("0.62 in")))
sketch3.addConstraint(Sketcher.Constraint("DistanceY", 17, 2, -1, 1, Q("0.62 in")))
sketch3.addConstraint(Sketcher.Constraint("DistanceX", 10, 1, 10, 2, 9.86151))
sketch3.addConstraint(Sketcher.Constraint("DistanceX", 15, 2, -1, 1, 33.865501))
sketch3.addConstraint(Sketcher.Constraint("DistanceX", -1, 1, 23, 2, 44.3547))
sketch3.addConstraint(Sketcher.Constraint("DistanceX", 4, 2, 3, 2, 34.701702))
sketch3.addConstraint(Sketcher.Constraint("DistanceY", 4, 2, 3, 2, 0.0948))
sketch3.addConstraint(Sketcher.Constraint("DistanceX", 9, 2, 4, 2, 24.761102))
sketch3.addConstraint(Sketcher.Constraint("DistanceY", 3, 2, 25, 2, 36.4369))
sketch3.addConstraint(Sketcher.Constraint("Distance", 6, 30.61793))
sketch3.addConstraint(Sketcher.Constraint("DistanceX", 1, 2, 1, 1, 29.679516))
sketch3.addConstraint(Sketcher.Constraint("DistanceX", 7, 2, 7, 1, 26.252193))
sketch3.addConstraint(Sketcher.Constraint("DistanceX", 15, 1, 15, 2, 35.090475))
sketch3.addConstraint(Sketcher.Constraint("DistanceX", 21, 1, 21, 2, 33.236275))
sketch3.addConstraint(Sketcher.Constraint("DistanceY", 0, 2, 0, 1, 25.057475))
sketch3.addConstraint(Sketcher.Constraint("DistanceY", 5, 2, 5, 1, 10.164774))
sketch3.addConstraint(Sketcher.Constraint("DistanceY", 8, 1, 8, 2, 29.426275))
sketch3.addConstraint(Sketcher.Constraint("DistanceY", 14, 1, 14, 2, 17.132675))
pocket2 = doc.addObject("PartDesign::Pocket", "Pocket001")
body.addObject(pocket2)
pocket2.Profile = sketch3
pocket2.Length = Q("0.75 in")
pocket2.Reversed = True

doc.recompute()
